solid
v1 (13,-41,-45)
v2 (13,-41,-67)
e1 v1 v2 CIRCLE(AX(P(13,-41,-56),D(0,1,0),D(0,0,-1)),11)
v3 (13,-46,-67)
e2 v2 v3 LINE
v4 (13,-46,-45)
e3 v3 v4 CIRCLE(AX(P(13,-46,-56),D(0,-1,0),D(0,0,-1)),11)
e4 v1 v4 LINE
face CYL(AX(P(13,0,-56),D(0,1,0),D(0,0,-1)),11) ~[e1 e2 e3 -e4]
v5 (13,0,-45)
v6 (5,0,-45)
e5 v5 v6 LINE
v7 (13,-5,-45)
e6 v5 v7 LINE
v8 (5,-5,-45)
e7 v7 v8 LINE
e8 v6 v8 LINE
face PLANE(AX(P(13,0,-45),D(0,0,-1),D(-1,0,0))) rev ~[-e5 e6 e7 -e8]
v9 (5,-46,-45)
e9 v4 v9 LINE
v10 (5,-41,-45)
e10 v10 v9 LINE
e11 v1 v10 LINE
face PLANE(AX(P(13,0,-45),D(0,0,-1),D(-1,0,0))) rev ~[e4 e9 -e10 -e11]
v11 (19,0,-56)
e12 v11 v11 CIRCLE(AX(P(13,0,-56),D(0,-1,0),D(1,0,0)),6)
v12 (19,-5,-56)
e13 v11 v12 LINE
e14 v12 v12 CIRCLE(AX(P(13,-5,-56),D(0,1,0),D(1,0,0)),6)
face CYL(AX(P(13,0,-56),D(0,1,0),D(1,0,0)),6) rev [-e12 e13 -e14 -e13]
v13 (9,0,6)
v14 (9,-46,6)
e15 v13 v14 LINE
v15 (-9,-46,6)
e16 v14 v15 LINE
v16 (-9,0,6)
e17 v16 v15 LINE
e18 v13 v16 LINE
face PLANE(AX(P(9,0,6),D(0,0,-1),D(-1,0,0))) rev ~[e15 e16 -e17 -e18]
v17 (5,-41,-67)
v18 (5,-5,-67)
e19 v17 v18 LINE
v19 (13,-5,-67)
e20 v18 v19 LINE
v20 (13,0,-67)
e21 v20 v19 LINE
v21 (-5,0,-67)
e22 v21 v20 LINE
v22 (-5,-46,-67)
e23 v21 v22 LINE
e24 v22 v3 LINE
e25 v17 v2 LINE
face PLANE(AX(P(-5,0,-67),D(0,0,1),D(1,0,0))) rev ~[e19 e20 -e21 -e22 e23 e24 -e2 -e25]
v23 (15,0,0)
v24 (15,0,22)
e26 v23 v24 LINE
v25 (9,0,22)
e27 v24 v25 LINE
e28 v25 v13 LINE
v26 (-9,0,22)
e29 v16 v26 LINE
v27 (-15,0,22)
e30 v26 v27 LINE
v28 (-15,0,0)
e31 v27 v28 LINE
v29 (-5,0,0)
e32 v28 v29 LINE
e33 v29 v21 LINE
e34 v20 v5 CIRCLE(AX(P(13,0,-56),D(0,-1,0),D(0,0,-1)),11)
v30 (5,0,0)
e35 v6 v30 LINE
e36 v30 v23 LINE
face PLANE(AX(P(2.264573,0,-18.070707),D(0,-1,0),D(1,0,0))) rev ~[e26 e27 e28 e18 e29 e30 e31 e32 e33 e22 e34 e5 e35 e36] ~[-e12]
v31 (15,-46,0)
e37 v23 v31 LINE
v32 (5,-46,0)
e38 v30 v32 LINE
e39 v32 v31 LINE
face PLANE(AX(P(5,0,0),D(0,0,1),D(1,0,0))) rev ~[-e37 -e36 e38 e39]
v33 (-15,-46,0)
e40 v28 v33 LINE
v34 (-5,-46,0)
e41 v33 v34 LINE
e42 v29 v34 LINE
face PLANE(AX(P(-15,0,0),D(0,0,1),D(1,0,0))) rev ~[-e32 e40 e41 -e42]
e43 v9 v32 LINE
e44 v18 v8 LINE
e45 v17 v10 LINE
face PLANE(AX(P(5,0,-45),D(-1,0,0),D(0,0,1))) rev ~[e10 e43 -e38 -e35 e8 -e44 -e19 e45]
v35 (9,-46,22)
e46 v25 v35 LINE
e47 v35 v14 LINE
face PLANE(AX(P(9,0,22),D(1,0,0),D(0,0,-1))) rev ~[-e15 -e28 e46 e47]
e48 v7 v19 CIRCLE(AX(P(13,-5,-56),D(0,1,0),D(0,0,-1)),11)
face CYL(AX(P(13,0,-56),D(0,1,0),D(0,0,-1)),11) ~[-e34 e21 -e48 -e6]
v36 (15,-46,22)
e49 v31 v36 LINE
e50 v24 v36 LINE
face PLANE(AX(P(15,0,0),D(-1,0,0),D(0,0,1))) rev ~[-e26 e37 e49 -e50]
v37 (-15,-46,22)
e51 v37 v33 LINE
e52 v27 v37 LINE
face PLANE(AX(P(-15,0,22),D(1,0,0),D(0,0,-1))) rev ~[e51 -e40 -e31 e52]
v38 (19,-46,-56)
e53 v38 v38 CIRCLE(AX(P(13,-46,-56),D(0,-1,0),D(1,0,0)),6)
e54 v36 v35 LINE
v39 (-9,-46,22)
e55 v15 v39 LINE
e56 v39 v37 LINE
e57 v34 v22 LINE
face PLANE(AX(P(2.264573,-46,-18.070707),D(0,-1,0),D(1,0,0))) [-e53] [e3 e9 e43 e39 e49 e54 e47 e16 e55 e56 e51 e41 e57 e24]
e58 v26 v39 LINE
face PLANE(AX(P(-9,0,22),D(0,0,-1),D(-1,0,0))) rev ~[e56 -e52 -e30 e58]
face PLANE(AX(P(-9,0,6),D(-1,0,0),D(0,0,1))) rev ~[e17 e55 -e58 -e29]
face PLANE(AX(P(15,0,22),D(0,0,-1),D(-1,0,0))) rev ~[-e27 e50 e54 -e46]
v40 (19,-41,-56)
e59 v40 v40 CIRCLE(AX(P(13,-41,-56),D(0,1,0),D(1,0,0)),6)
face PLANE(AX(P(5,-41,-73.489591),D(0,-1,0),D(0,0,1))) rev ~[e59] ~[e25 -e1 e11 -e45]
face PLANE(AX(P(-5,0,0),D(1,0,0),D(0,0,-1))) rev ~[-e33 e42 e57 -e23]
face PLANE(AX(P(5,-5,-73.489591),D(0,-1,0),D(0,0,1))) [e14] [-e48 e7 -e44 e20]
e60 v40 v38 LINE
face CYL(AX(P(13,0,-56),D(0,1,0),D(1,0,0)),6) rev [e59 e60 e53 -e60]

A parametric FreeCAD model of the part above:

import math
import FreeCAD as App
import Part
import Sketcher
from FreeCAD import Vector


def add_polygon(sketch, points):
    """Adds a closed chain of lines whose ends are joined by coincident constraints."""
    first, n = sketch.GeometryCount, len(points)
    for a, b in zip(points, points[1:] + points[:1]):
        sketch.addGeometry(Part.LineSegment(App.Vector(*a, 0), App.Vector(*b, 0)), False)
    for i in range(n):
        sketch.addConstraint(Sketcher.Constraint("Coincident", first + i, 2, first + (i + 1) % n, 1))

doc = App.newDocument("Part")
body = doc.addObject("PartDesign::Body", "Body")

# Sketch on XZ plane
sketch1 = doc.addObject("Sketcher::SketchObject", "Sketch")
body.addObject(sketch1)
sketch1.AttachmentSupport = (doc.XZ_Plane, [""])
sketch1.MapMode = "FlatFace"
sketch1.addGeometry([
    Part.LineSegment(Vector(5, -45, 0), Vector(5, 0, 0)),  # 0
    Part.LineSegment(Vector(5, 0, 0), Vector(15, 0, 0)),  # 1
    Part.LineSegment(Vector(15, 0, 0), Vector(15, 22, 0)),  # 2
    Part.LineSegment(Vector(15, 22, 0), Vector(9, 22, 0)),  # 3
    Part.LineSegment(Vector(9, 22, 0), Vector(9, 6, 0)),  # 4
    Part.LineSegment(Vector(9, 6, 0), Vector(-9, 6, 0)),  # 5
    Part.LineSegment(Vector(-9, 6, 0), Vector(-9, 22, 0)),  # 6
    Part.LineSegment(Vector(-9, 22, 0), Vector(-15, 22, 0)),  # 7
    Part.LineSegment(Vector(-15, 22, 0), Vector(-15, 0, 0)),  # 8
    Part.LineSegment(Vector(-15, 0, 0), Vector(-5, 0, 0)),  # 9
    Part.LineSegment(Vector(-5, 0, 0), Vector(-5, -67, 0)),  # 10
    Part.LineSegment(Vector(-5, -67, 0), Vector(13, -67, 0)),  # 11
    Part.ArcOfCircle(Part.Circle(Vector(13, -56, 0), Vector(0, 0, 1), 11), math.radians(-90), math.radians(90)),  # 12
    Part.LineSegment(Vector(13, -45, 0), Vector(5, -45, 0)),  # 13
    Part.Circle(Vector(13, -56, 0), Vector(0, 0, 1), 6),  # 14
], False)
sketch1.addConstraint([
    Sketcher.Constraint("Coincident", 0, 2, 1, 1),
    Sketcher.Constraint("Coincident", 1, 2, 2, 1),
    Sketcher.Constraint("Coincident", 2, 2, 3, 1),
    Sketcher.Constraint("Coincident", 3, 2, 4, 1),
    Sketcher.Constraint("Coincident", 4, 2, 5, 1),
    Sketcher.Constraint("Coincident", 5, 2, 6, 1),
    Sketcher.Constraint("Coincident", 6, 2, 7, 1),
    Sketcher.Constraint("Coincident", 7, 2, 8, 1),
    Sketcher.Constraint("Coincident", 8, 2, 9, 1),
    Sketcher.Constraint("Coincident", 9, 2, 10, 1),
    Sketcher.Constraint("Coincident", 10, 2, 11, 1),
    Sketcher.Constraint("Tangent", 11, 2, 12, 1),
    Sketcher.Constraint("Tangent", 12, 2, 13, 1),
    Sketcher.Constraint("Coincident", 13, 2, 0, 1),
    Sketcher.Constraint("Vertical", 0),
    Sketcher.Constraint("Horizontal", 1),
    Sketcher.Constraint("Vertical", 2),
    Sketcher.Constraint("Horizontal", 3),
    Sketcher.Constraint("Vertical", 4),
    Sketcher.Constraint("Horizontal", 5),
    Sketcher.Constraint("Vertical", 6),
    Sketcher.Constraint("Horizontal", 7),
    Sketcher.Constraint("Vertical", 8),
    Sketcher.Constraint("Horizontal", 9),
    Sketcher.Constraint("Vertical", 10),
    Sketcher.Constraint("Horizontal", 11),
    Sketcher.Constraint("Horizontal", 13),
    Sketcher.Constraint("Coincident", 14, 3, 12, 3),
    Sketcher.Constraint("Symmetric", 1, 2, 8, 2, -1, 1),
    Sketcher.Constraint("Symmetric", 3, 2, 6, 2, -2),
    Sketcher.Constraint("Symmetric", 0, 2, 9, 2, -2),
    Sketcher.Constraint("Equal", 5, 11),
    Sketcher.Constraint("Diameter", 14, 12.0),
    Sketcher.Constraint("Radius", 12, 11.0),
    Sketcher.Constraint("DistanceX", 1, 1, 1, 2, 10.0),
    Sketcher.Constraint("DistanceX", 3, 2, 3, 1, 6.0),
    Sketcher.Constraint("DistanceX", 5, 2, 5, 1, 18.0),
    Sketcher.Constraint("DistanceY", 0, 1, 0, 2, 45.0),
    Sketcher.Constraint("DistanceY", 2, 1, 2, 2, 22.0),
    Sketcher.Constraint("DistanceY", 4, 2, 4, 1, 16.0),
])
pad1 = doc.addObject("PartDesign::Pad", "Pad")
body.addObject(pad1)
pad1.Profile = sketch1
pad1.Length = 46
body2 = doc.addObject("PartDesign::Body", "Body001")

# Sketch on YZ plane
sketch2 = doc.addObject("Sketcher::SketchObject", "Sketch001")
body2.addObject(sketch2)
sketch2.AttachmentSupport = (doc.getObject("YZ_Plane001"), [""])
sketch2.MapMode = "FlatFace"
sketch2.AttachmentOffset = App.Placement(Vector(0, 0, 5), App.Rotation())
add_polygon(sketch2, [(-41, -45), (-41, -73), (-5, -73), (-5, -45)])  # lines 0-3
sketch2.addConstraint([
    Sketcher.Constraint("Vertical", 0),
    Sketcher.Constraint("Horizontal", 1),
    Sketcher.Constraint("Vertical", 2),
    Sketcher.Constraint("Horizontal", 3),
    Sketcher.Constraint("DistanceX", 1, 1, 1, 2, 36.0),
    Sketcher.Constraint("DistanceX", 0, 2, -1, 1, 41.0),
    Sketcher.Constraint("DistanceY", 2, 2, -1, 1, 45.0),
    Sketcher.Constraint("DistanceY", 0, 2, 0, 1, 28.489591),
])
pad2 = doc.addObject("PartDesign::Pad", "Pad001")
body2.addObject(pad2)
pad2.Profile = sketch2
pad2.Length = 25
doc.recompute()

boolean = doc.addObject("PartDesign::Boolean", "Boolean")
body.addObject(boolean)
boolean.Type = "Cut"
boolean.addObjects([body2])

doc.recompute()
